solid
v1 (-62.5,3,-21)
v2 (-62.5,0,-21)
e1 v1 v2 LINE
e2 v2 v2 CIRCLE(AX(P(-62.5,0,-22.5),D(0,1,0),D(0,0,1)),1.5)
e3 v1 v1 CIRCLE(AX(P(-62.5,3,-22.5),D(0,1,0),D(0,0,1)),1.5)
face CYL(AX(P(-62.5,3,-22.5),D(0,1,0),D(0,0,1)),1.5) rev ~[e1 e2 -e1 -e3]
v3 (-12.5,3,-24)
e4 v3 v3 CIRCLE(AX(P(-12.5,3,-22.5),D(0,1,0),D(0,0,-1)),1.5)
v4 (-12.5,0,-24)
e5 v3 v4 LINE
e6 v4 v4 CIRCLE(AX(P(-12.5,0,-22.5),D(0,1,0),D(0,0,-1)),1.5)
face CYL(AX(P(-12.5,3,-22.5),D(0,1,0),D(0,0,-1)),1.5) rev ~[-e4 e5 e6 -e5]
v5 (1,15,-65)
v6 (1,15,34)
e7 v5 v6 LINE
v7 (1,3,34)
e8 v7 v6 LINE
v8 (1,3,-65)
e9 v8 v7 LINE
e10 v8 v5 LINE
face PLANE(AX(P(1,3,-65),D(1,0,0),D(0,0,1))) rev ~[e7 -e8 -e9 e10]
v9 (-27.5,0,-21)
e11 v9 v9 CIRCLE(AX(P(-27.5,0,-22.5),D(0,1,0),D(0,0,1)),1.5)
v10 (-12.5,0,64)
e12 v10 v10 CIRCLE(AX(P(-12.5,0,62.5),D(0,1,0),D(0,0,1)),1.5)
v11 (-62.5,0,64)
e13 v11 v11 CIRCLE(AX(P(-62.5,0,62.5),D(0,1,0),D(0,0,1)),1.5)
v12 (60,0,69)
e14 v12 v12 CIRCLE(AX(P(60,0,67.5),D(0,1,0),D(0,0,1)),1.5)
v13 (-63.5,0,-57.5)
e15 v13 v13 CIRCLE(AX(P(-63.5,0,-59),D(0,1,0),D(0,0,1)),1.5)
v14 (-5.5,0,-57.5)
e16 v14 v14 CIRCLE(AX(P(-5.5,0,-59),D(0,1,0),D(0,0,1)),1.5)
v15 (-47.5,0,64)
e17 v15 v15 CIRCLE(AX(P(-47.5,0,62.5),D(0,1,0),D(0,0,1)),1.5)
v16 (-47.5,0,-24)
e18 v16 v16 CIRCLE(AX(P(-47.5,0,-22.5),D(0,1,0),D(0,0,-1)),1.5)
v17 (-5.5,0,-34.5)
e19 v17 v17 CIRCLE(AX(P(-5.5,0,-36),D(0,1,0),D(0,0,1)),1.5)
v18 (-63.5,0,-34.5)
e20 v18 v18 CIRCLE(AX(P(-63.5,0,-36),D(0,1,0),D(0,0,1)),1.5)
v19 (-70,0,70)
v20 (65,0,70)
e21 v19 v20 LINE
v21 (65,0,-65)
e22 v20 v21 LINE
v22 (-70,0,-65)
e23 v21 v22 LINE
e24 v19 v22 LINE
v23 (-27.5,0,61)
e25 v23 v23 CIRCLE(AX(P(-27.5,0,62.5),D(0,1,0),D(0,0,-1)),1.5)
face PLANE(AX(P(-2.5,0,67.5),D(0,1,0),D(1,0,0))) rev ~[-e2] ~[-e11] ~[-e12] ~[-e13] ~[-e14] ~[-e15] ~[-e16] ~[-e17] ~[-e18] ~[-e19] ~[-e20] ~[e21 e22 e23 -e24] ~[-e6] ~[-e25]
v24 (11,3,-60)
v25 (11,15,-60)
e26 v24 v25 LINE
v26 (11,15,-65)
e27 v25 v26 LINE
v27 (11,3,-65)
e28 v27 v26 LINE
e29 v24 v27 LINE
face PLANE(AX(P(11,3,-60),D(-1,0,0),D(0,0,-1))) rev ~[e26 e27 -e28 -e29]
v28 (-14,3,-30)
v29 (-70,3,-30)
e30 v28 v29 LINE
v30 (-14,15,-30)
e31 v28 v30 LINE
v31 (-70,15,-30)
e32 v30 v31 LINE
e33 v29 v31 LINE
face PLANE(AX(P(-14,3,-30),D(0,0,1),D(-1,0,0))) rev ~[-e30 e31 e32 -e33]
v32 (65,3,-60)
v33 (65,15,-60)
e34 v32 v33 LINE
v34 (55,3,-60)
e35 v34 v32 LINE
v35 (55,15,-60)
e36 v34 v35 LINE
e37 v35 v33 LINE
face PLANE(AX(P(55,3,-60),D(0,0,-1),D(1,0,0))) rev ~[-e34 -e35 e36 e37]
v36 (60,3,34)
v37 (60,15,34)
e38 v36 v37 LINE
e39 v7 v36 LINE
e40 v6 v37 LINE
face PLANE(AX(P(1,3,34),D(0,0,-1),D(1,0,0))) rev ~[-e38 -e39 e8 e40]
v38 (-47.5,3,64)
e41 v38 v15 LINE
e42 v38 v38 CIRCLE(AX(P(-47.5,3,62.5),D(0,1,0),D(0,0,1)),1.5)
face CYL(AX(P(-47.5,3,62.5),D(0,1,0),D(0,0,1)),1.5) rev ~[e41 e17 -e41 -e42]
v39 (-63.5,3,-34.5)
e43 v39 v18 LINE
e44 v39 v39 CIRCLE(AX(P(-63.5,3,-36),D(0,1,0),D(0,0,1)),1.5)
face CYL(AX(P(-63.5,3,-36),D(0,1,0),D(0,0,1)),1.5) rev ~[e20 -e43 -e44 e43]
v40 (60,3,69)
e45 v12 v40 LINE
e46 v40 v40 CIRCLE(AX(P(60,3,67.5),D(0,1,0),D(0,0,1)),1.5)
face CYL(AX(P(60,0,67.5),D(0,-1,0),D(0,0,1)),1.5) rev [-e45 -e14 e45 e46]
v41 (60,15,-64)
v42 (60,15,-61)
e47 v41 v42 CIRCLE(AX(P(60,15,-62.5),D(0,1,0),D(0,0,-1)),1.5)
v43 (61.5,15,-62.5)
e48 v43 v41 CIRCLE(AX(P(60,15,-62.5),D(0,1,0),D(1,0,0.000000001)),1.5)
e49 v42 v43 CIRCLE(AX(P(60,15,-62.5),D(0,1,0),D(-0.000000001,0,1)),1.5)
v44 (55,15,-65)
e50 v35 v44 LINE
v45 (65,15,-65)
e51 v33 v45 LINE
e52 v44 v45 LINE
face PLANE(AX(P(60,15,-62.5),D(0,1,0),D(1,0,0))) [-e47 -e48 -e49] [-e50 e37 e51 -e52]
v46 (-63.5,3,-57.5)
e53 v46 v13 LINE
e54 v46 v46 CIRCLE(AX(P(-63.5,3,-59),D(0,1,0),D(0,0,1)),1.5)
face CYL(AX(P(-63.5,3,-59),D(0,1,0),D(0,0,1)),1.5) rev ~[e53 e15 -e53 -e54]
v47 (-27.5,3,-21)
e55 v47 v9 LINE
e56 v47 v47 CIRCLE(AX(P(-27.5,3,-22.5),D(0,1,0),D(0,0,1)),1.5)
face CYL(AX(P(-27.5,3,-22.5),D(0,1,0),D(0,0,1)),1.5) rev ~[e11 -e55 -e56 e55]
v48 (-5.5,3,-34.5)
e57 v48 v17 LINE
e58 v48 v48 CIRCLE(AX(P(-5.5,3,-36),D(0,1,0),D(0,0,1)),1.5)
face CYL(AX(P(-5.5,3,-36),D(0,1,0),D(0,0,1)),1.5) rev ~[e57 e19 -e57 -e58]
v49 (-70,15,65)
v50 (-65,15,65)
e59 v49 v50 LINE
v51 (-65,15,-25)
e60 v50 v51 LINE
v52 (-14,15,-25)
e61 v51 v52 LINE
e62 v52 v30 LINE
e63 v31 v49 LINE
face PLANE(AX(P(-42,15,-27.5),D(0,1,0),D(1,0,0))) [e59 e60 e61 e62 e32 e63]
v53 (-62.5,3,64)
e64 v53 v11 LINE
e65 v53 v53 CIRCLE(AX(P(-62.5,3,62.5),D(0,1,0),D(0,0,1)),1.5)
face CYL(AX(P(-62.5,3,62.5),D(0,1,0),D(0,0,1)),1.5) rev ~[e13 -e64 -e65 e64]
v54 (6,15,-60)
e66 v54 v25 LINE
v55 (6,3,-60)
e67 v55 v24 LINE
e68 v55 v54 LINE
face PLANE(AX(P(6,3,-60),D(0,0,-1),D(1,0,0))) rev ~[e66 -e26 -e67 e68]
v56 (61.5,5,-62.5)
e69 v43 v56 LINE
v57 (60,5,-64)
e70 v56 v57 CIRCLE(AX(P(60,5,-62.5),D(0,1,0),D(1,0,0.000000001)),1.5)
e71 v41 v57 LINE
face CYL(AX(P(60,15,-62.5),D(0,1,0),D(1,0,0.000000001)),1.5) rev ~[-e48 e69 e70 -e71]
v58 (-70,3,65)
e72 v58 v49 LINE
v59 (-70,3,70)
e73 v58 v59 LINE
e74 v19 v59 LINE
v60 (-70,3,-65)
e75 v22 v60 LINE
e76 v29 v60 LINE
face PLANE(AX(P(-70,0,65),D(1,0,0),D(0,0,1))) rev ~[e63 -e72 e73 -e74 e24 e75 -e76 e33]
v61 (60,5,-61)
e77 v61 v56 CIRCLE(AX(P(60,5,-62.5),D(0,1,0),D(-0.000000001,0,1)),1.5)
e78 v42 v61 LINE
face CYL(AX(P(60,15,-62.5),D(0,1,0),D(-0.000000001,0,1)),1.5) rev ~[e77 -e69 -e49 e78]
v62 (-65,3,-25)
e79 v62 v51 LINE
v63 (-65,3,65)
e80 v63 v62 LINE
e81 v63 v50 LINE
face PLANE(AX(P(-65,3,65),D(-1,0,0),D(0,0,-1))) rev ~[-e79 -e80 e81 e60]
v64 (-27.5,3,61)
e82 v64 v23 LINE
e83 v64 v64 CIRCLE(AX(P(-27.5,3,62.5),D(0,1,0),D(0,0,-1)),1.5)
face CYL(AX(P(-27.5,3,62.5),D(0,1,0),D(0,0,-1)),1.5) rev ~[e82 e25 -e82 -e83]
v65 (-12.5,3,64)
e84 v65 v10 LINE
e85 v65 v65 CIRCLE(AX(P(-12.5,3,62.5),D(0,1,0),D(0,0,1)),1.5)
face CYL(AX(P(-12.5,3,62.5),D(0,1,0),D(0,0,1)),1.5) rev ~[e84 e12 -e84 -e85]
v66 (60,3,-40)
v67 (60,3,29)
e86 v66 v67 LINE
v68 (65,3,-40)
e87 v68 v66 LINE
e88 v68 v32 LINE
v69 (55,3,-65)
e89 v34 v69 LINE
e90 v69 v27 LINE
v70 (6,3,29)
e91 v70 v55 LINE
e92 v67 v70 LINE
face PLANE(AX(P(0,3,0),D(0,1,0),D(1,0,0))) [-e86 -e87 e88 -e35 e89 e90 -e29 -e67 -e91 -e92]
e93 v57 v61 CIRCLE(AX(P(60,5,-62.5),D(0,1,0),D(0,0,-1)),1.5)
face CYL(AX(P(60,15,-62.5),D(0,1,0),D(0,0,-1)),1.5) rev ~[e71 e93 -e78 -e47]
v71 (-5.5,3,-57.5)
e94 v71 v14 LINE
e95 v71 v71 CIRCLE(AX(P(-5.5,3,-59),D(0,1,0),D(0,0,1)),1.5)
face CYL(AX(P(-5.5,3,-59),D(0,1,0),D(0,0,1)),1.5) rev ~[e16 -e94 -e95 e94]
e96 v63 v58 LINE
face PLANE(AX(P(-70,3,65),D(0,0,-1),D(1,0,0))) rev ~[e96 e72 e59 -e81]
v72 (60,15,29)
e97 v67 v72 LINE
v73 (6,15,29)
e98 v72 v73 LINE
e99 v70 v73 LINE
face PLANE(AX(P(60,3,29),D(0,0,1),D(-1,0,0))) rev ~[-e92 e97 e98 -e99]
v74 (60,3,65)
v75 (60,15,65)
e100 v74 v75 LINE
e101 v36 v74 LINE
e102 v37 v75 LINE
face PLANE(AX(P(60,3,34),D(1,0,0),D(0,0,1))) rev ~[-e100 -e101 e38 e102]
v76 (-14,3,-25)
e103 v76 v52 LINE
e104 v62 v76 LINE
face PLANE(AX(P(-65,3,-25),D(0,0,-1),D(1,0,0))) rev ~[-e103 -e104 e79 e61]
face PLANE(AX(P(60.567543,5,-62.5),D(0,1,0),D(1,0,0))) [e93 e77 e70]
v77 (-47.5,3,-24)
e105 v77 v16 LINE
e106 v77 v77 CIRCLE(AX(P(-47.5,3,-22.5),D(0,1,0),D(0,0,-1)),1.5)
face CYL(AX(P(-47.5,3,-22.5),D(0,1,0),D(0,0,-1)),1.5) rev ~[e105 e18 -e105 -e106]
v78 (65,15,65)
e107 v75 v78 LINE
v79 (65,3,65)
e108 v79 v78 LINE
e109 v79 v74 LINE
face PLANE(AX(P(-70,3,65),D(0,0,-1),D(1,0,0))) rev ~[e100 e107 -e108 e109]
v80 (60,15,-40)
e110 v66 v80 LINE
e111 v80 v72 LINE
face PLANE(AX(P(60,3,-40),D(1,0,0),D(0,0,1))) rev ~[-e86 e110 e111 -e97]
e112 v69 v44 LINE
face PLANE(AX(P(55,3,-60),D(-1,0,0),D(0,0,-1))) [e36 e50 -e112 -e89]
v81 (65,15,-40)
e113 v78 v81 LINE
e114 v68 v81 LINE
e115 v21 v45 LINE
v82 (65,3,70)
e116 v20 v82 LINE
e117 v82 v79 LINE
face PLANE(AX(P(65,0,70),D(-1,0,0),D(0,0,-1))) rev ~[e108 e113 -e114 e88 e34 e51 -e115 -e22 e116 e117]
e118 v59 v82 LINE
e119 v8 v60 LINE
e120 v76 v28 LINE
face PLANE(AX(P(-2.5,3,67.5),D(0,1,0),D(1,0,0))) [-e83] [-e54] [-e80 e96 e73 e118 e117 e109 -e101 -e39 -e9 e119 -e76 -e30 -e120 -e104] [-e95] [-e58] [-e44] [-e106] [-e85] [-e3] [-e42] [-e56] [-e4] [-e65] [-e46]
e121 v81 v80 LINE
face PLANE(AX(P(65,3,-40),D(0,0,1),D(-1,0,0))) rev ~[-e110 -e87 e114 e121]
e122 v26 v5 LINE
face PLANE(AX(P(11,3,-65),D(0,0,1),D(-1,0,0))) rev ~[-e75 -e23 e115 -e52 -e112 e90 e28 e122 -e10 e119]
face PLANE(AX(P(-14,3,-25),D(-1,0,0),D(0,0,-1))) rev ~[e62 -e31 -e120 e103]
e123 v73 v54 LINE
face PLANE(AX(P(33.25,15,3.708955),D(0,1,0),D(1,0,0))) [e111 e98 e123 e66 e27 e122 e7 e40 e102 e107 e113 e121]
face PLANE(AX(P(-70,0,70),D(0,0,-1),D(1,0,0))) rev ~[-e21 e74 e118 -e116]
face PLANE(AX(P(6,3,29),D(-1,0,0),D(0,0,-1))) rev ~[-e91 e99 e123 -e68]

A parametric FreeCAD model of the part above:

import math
import FreeCAD as App
import Part
import Sketcher

V = App.Vector


def add_polygon(sketch, points):
    """Adds a closed chain of lines whose ends are joined by coincident constraints."""
    first, n = sketch.GeometryCount, len(points)
    for a, b in zip(points, points[1:] + points[:1]):
        sketch.addGeometry(Part.LineSegment(App.Vector(*a, 0), App.Vector(*b, 0)), False)
    for i in range(n):
        sketch.addConstraint(Sketcher.Constraint("Coincident", first + i, 2, first + (i + 1) % n, 1))

doc = App.newDocument("Part")
body = doc.addObject("PartDesign::Body", "Body")

# Sketch on XZ plane
sketch1 = doc.addObject("Sketcher::SketchObject", "Sketch")
body.addObject(sketch1)
sketch1.AttachmentSupport = (doc.XZ_Plane, [""])
sketch1.MapMode = "FlatFace"
add_polygon(sketch1, [(65, 65), (65, -65), (-70, -65), (-70, 65)])  # lines 0-3
sketch1.addConstraint(Sketcher.Constraint("Vertical", 0))
sketch1.addConstraint(Sketcher.Constraint("Horizontal", 1))
sketch1.addConstraint(Sketcher.Constraint("Vertical", 2))
sketch1.addConstraint(Sketcher.Constraint("Horizontal", 3))
sketch1.addConstraint(Sketcher.Constraint("DistanceX", 1, 2, 1, 1, 135.0))
sketch1.addConstraint(Sketcher.Constraint("DistanceY", 0, 2, 0, 1, 130.0))
sketch1.addConstraint(Sketcher.Constraint("DistanceX", -1, 1, 0, 2, 65.0))
sketch1.addConstraint(Sketcher.Constraint("DistanceY", 0, 2, -1, 1, 65.0))
pad1 = doc.addObject("PartDesign::Pad", "Pad")
body.addObject(pad1)
pad1.Profile = sketch1
pad1.Length = 3
pad1.Reversed = True

# Sketch on XZ plane
sketch2 = doc.addObject("Sketcher::SketchObject", "Sketch001")
body.addObject(sketch2)
sketch2.AttachmentSupport = (doc.XZ_Plane, [""])
sketch2.MapMode = "FlatFace"
sketch2.AttachmentOffset = App.Placement(V(0, 0, -3), App.Rotation())
sketch2.addGeometry(Part.Circle(V(-47.5, 62.5, 0), V(0, 0, 1), 1.5), False)
sketch2.addGeometry(Part.Circle(V(-62.5, 62.5, 0), V(0, 0, 1), 1.5), False)
sketch2.addGeometry(Part.Circle(V(-62.5, -22.5, 0), V(0, 0, 1), 1.5), False)
sketch2.addGeometry(Part.Circle(V(-47.5, -22.5, 0), V(0, 0, 1), 1.5), False)
sketch2.addGeometry(Part.Circle(V(-27.5, -22.5, 0), V(0, 0, 1), 1.5), False)
sketch2.addGeometry(Part.Circle(V(-12.5, -22.5, 0), V(0, 0, 1), 1.5), False)
sketch2.addGeometry(Part.Circle(V(-27.5, 62.5, 0), V(0, 0, 1), 1.5), False)
sketch2.addGeometry(Part.Circle(V(-12.5, 62.5, 0), V(0, 0, 1), 1.5), False)
sketch2.addConstraint(Sketcher.Constraint("Equal", 0, 1))
sketch2.addConstraint(Sketcher.Constraint("Equal", 1, 2))
sketch2.addConstraint(Sketcher.Constraint("Equal", 2, 3))
sketch2.addConstraint(Sketcher.Constraint("Equal", 3, 4))
sketch2.addConstraint(Sketcher.Constraint("Equal", 4, 5))
sketch2.addConstraint(Sketcher.Constraint("Equal", 5, 6))
sketch2.addConstraint(Sketcher.Constraint("Equal", 6, 7))
sketch2.addConstraint(Sketcher.Constraint("Horizontal", 0, 3, 1, 3))
sketch2.addConstraint(Sketcher.Constraint("Horizontal", 2, 3, 3, 3))
sketch2.addConstraint(Sketcher.Constraint("Horizontal", 3, 3, 4, 3))
sketch2.addConstraint(Sketcher.Constraint("Horizontal", 4, 3, 5, 3))
sketch2.addConstraint(Sketcher.Constraint("Horizontal", 1, 3, 6, 3))
sketch2.addConstraint(Sketcher.Constraint("Horizontal", 6, 3, 7, 3))
sketch2.addConstraint(Sketcher.Constraint("Vertical", 1, 3, 2, 3))
sketch2.addConstraint(Sketcher.Constraint("Vertical", 0, 3, 3, 3))
sketch2.addConstraint(Sketcher.Constraint("Vertical", 4, 3, 6, 3))
sketch2.addConstraint(Sketcher.Constraint("Vertical", 5, 3, 7, 3))
sketch2.addConstraint(Sketcher.Constraint("Diameter", 0, 3.0))
sketch2.addConstraint(Sketcher.Constraint("DistanceX", 1, 3, 0, 3, 15.0))
sketch2.addConstraint(Sketcher.Constraint("DistanceY", 2, 3, 1, 3, 85.0))
sketch2.addConstraint(Sketcher.Constraint("DistanceX", 3, 3, 4, 3, 20.0))
sketch2.addConstraint(Sketcher.Constraint("DistanceX", 4, 3, 5, 3, 15.0))
sketch2.addConstraint(Sketcher.Constraint("DistanceX", 0, 3, -1, 1, 47.5))
sketch2.addConstraint(Sketcher.Constraint("DistanceY", -1, 1, 0, 3, 62.5))
pocket1 = doc.addObject("PartDesign::Pocket", "Pocket")
body.addObject(pocket1)
pocket1.Profile = sketch2
pocket1.Length = 3
pocket1.Reversed = True

# Sketch on XZ plane
sketch3 = doc.addObject("Sketcher::SketchObject", "Sketch002")
body.addObject(sketch3)
sketch3.AttachmentSupport = (doc.XZ_Plane, [""])
sketch3.MapMode = "FlatFace"
sketch3.AttachmentOffset = App.Placement(V(0, 0, -3), App.Rotation())
add_polygon(sketch3, [(60, 65), (65, 65), (65, -40), (60, -40), (60, 29), (6, 29), (6, -60), (11, -60), (11, -65), (1, -65), (1, 34), (60, 34)])  # lines 0-11
add_polygon(sketch3, [(55, -65), (55, -60), (65, -60), (65, -65)])  # lines 12-15
sketch3.addConstraint(Sketcher.Constraint("Horizontal", 0))
sketch3.addConstraint(Sketcher.Constraint("Vertical", 1))
sketch3.addConstraint(Sketcher.Constraint("Horizontal", 2))
sketch3.addConstraint(Sketcher.Constraint("Vertical", 3))
sketch3.addConstraint(Sketcher.Constraint("Horizontal", 4))
sketch3.addConstraint(Sketcher.Constraint("Vertical", 5))
sketch3.addConstraint(Sketcher.Constraint("Horizontal", 6))
sketch3.addConstraint(Sketcher.Constraint("Vertical", 7))
sketch3.addConstraint(Sketcher.Constraint("Horizontal", 8))
sketch3.addConstraint(Sketcher.Constraint("Vertical", 9))
sketch3.addConstraint(Sketcher.Constraint("Horizontal", 10))
sketch3.addConstraint(Sketcher.Constraint("Vertical", 11))
sketch3.addConstraint(Sketcher.Constraint("Vertical", 12))
sketch3.addConstraint(Sketcher.Constraint("Horizontal", 13))
sketch3.addConstraint(Sketcher.Constraint("Vertical", 14))
sketch3.addConstraint(Sketcher.Constraint("Horizontal", 15))
sketch3.addConstraint(Sketcher.Constraint("Symmetric", 0, 2, 14, 2, -1))
sketch3.addConstraint(Sketcher.Constraint("Horizontal", 6, 2, 12, 2))
sketch3.addConstraint(Sketcher.Constraint("Horizontal", 8, 2, 14, 2))
sketch3.addConstraint(Sketcher.Constraint("Vertical", 3, 2, 10, 2))
sketch3.addConstraint(Sketcher.Constraint("Equal", 2, 6))
sketch3.addConstraint(Sketcher.Constraint("Equal", 8, 13))
sketch3.addConstraint(Sketcher.Constraint("Equal", 6, 7))
sketch3.addConstraint(Sketcher.Constraint("DistanceX", 0, 1, 0, 2, 5.0))
sketch3.addConstraint(Sketcher.Constraint("DistanceX", 4, 2, 4, 1, 54.0))
sketch3.addConstraint(Sketcher.Constraint("DistanceX", 8, 2, 8, 1, 10.0))
sketch3.addConstraint(Sketcher.Constraint("DistanceY", 1, 2, 1, 1, 105.0))
sketch3.addConstraint(Sketcher.Constraint("DistanceY", 3, 1, 3, 2, 69.0))
sketch3.addConstraint(Sketcher.Constraint("DistanceY", 5, 2, 5, 1, 89.0))
sketch3.addConstraint(Sketcher.Constraint("DistanceY", 9, 1, 9, 2, 99.0))
sketch3.addConstraint(Sketcher.Constraint("DistanceX", -1, 1, 0, 2, 65.0))
pad2 = doc.addObject("PartDesign::Pad", "Pad001")
body.addObject(pad2)
pad2.Profile = sketch3
pad2.Length = 12
pad2.Reversed = True

# Sketch on XZ plane
sketch4 = doc.addObject("Sketcher::SketchObject", "Sketch003")
body.addObject(sketch4)
sketch4.AttachmentSupport = (doc.XZ_Plane, [""])
sketch4.MapMode = "FlatFace"
sketch4.AttachmentOffset = App.Placement(V(0, 0, -3), App.Rotation())
sketch4.addGeometry(Part.Circle(V(-63.5, -59, 0), V(0, 0, 1), 1.5), False)
sketch4.addGeometry(Part.Circle(V(-63.5, -36, 0), V(0, 0, 1), 1.5), False)
sketch4.addGeometry(Part.Circle(V(-5.5, -36, 0), V(0, 0, 1), 1.5), False)
sketch4.addGeometry(Part.Circle(V(-5.5, -59, 0), V(0, 0, 1), 1.5), False)
sketch4.addConstraint(Sketcher.Constraint("Equal", 0, 1))
sketch4.addConstraint(Sketcher.Constraint("Equal", 1, 2))
sketch4.addConstraint(Sketcher.Constraint("Equal", 2, 3))
sketch4.addConstraint(Sketcher.Constraint("Horizontal", 1, 3, 2, 3))
sketch4.addConstraint(Sketcher.Constraint("Horizontal", 0, 3, 3, 3))
sketch4.addConstraint(Sketcher.Constraint("Vertical", 0, 3, 1, 3))
sketch4.addConstraint(Sketcher.Constraint("Vertical", 2, 3, 3, 3))
sketch4.addConstraint(Sketcher.Constraint("Diameter", 0, 3.0))
sketch4.addConstraint(Sketcher.Constraint("DistanceY", 0, 3, -1, 1, 59.0))
sketch4.addConstraint(Sketcher.Constraint("DistanceY", 1, 3, -1, 1, 36.0))
sketch4.addConstraint(Sketcher.Constraint("DistanceX", 1, 3, 2, 3, 58.0))
sketch4.addConstraint(Sketcher.Constraint("DistanceX", 0, 3, -1, 1, 63.5))
pocket2 = doc.addObject("PartDesign::Pocket", "Pocket001")
body.addObject(pocket2)
pocket2.Profile = sketch4
pocket2.Length = 9
pocket2.Reversed = True

# Sketch on XZ plane
sketch5 = doc.addObject("Sketcher::SketchObject", "Sketch004")
body.addObject(sketch5)
sketch5.AttachmentSupport = (doc.XZ_Plane, [""])
sketch5.MapMode = "FlatFace"
sketch5.AttachmentOffset = App.Placement(V(0, 0, -3), App.Rotation())
add_polygon(sketch5, [(-70, -30), (-70, 65), (-65, 65), (-65, -25), (-14, -25), (-14, -30)])  # lines 0-5
sketch5.addConstraint(Sketcher.Constraint("Vertical", 0))
sketch5.addConstraint(Sketcher.Constraint("Horizontal", 1))
sketch5.addConstraint(Sketcher.Constraint("Vertical", 2))
sketch5.addConstraint(Sketcher.Constraint("Horizontal", 3))
sketch5.addConstraint(Sketcher.Constraint("Vertical", 4))
sketch5.addConstraint(Sketcher.Constraint("Horizontal", 5))
sketch5.addConstraint(Sketcher.Constraint("Equal", 1, 4))
sketch5.addConstraint(Sketcher.Constraint("DistanceX", 1, 1, 1, 2, 5.0))
sketch5.addConstraint(Sketcher.Constraint("DistanceX", 3, 1, 3, 2, 51.0))
sketch5.addConstraint(Sketcher.Constraint("DistanceY", 0, 1, 0, 2, 95.0))
sketch5.addConstraint(Sketcher.Constraint("DistanceX", 0, 2, -1, 1, 70.0))
sketch5.addConstraint(Sketcher.Constraint("DistanceY", -1, 1, 0, 2, 65.0))
pad3 = doc.addObject("PartDesign::Pad", "Pad002")
body.addObject(pad3)
pad3.Profile = sketch5
pad3.Length = 12
pad3.Reversed = True

# Sketch on XZ plane
sketch6 = doc.addObject("Sketcher::SketchObject", "Sketch005")
body.addObject(sketch6)
sketch6.AttachmentSupport = (doc.XZ_Plane, [""])
sketch6.MapMode = "FlatFace"
add_polygon(sketch6, [(65, 65), (-70, 65), (-70, 70), (65, 70)])  # lines 0-3
sketch6.addGeometry(Part.Circle(V(60, 67.5, 0), V(0, 0, 1), 1.5), False)  # 4
sketch6.addConstraint(Sketcher.Constraint("Horizontal", 0))
sketch6.addConstraint(Sketcher.Constraint("Vertical", 1))
sketch6.addConstraint(Sketcher.Constraint("Horizontal", 2))
sketch6.addConstraint(Sketcher.Constraint("Vertical", 3))
sketch6.addConstraint(Sketcher.Constraint("Diameter", 4, 3.0))
sketch6.addConstraint(Sketcher.Constraint("DistanceX", 0, 2, 0, 1, 135.0))
sketch6.addConstraint(Sketcher.Constraint("DistanceY", 1, 1, 1, 2, 5.0))
sketch6.addConstraint(Sketcher.Constraint("DistanceX", -1, 1, 4, 3, 60.0))
sketch6.addConstraint(Sketcher.Constraint("DistanceX", 0, 2, -1, 1, 70.0))
sketch6.addConstraint(Sketcher.Constraint("DistanceY", -1, 1, 0, 2, 65.0))
sketch6.addConstraint(Sketcher.Constraint("DistanceY", -1, 1, 4, 3, 67.5))
pad4 = doc.addObject("PartDesign::Pad", "Pad003")
body.addObject(pad4)
pad4.Profile = sketch6
pad4.Length = 3
pad4.Reversed = True

# Sketch on XZ plane
sketch7 = doc.addObject("Sketcher::SketchObject", "Sketch006")
body.addObject(sketch7)
sketch7.AttachmentSupport = (doc.XZ_Plane, [""])
sketch7.MapMode = "FlatFace"
sketch7.AttachmentOffset = App.Placement(V(0, 0, -15), App.Rotation())
sketch7.addGeometry(Part.ArcOfCircle(Part.Circle(V(60, -62.5, 0), V(0, 0, 1), 1.5), math.radians(-90), math.radians(0)), False)
sketch7.addGeometry(Part.ArcOfCircle(Part.Circle(V(60, -62.5, 0), V(0, 0, 1), 1.5), math.radians(90), math.radians(270)), False)
sketch7.addGeometry(Part.ArcOfCircle(Part.Circle(V(60, -62.5, 0), V(0, 0, 1), 1.5), math.radians(0), math.radians(90)), False)
sketch7.addConstraint(Sketcher.Constraint("Tangent", 0, 1, 1, 2))
sketch7.addConstraint(Sketcher.Constraint("Tangent", 1, 1, 2, 2))
sketch7.addConstraint(Sketcher.Constraint("Tangent", 2, 1, 0, 2))
sketch7.addConstraint(Sketcher.Constraint("Horizontal", 1, 3, 2, 1))
sketch7.addConstraint(Sketcher.Constraint("Vertical", 2, 3, 0, 1))
sketch7.addConstraint(Sketcher.Constraint("Vertical", 0, 1, 1, 1))
sketch7.addConstraint(Sketcher.Constraint("Radius", 0, 1.5))
sketch7.addConstraint(Sketcher.Constraint("DistanceX", -1, 1, 0, 3, 60.0))
sketch7.addConstraint(Sketcher.Constraint("DistanceY", 0, 1, -1, 1, 64.0))
pocket3 = doc.addObject("PartDesign::Pocket", "Pocket002")
body.addObject(pocket3)
pocket3.Profile = sketch7
pocket3.Length = 10
pocket3.Reversed = True

doc.recompute()
